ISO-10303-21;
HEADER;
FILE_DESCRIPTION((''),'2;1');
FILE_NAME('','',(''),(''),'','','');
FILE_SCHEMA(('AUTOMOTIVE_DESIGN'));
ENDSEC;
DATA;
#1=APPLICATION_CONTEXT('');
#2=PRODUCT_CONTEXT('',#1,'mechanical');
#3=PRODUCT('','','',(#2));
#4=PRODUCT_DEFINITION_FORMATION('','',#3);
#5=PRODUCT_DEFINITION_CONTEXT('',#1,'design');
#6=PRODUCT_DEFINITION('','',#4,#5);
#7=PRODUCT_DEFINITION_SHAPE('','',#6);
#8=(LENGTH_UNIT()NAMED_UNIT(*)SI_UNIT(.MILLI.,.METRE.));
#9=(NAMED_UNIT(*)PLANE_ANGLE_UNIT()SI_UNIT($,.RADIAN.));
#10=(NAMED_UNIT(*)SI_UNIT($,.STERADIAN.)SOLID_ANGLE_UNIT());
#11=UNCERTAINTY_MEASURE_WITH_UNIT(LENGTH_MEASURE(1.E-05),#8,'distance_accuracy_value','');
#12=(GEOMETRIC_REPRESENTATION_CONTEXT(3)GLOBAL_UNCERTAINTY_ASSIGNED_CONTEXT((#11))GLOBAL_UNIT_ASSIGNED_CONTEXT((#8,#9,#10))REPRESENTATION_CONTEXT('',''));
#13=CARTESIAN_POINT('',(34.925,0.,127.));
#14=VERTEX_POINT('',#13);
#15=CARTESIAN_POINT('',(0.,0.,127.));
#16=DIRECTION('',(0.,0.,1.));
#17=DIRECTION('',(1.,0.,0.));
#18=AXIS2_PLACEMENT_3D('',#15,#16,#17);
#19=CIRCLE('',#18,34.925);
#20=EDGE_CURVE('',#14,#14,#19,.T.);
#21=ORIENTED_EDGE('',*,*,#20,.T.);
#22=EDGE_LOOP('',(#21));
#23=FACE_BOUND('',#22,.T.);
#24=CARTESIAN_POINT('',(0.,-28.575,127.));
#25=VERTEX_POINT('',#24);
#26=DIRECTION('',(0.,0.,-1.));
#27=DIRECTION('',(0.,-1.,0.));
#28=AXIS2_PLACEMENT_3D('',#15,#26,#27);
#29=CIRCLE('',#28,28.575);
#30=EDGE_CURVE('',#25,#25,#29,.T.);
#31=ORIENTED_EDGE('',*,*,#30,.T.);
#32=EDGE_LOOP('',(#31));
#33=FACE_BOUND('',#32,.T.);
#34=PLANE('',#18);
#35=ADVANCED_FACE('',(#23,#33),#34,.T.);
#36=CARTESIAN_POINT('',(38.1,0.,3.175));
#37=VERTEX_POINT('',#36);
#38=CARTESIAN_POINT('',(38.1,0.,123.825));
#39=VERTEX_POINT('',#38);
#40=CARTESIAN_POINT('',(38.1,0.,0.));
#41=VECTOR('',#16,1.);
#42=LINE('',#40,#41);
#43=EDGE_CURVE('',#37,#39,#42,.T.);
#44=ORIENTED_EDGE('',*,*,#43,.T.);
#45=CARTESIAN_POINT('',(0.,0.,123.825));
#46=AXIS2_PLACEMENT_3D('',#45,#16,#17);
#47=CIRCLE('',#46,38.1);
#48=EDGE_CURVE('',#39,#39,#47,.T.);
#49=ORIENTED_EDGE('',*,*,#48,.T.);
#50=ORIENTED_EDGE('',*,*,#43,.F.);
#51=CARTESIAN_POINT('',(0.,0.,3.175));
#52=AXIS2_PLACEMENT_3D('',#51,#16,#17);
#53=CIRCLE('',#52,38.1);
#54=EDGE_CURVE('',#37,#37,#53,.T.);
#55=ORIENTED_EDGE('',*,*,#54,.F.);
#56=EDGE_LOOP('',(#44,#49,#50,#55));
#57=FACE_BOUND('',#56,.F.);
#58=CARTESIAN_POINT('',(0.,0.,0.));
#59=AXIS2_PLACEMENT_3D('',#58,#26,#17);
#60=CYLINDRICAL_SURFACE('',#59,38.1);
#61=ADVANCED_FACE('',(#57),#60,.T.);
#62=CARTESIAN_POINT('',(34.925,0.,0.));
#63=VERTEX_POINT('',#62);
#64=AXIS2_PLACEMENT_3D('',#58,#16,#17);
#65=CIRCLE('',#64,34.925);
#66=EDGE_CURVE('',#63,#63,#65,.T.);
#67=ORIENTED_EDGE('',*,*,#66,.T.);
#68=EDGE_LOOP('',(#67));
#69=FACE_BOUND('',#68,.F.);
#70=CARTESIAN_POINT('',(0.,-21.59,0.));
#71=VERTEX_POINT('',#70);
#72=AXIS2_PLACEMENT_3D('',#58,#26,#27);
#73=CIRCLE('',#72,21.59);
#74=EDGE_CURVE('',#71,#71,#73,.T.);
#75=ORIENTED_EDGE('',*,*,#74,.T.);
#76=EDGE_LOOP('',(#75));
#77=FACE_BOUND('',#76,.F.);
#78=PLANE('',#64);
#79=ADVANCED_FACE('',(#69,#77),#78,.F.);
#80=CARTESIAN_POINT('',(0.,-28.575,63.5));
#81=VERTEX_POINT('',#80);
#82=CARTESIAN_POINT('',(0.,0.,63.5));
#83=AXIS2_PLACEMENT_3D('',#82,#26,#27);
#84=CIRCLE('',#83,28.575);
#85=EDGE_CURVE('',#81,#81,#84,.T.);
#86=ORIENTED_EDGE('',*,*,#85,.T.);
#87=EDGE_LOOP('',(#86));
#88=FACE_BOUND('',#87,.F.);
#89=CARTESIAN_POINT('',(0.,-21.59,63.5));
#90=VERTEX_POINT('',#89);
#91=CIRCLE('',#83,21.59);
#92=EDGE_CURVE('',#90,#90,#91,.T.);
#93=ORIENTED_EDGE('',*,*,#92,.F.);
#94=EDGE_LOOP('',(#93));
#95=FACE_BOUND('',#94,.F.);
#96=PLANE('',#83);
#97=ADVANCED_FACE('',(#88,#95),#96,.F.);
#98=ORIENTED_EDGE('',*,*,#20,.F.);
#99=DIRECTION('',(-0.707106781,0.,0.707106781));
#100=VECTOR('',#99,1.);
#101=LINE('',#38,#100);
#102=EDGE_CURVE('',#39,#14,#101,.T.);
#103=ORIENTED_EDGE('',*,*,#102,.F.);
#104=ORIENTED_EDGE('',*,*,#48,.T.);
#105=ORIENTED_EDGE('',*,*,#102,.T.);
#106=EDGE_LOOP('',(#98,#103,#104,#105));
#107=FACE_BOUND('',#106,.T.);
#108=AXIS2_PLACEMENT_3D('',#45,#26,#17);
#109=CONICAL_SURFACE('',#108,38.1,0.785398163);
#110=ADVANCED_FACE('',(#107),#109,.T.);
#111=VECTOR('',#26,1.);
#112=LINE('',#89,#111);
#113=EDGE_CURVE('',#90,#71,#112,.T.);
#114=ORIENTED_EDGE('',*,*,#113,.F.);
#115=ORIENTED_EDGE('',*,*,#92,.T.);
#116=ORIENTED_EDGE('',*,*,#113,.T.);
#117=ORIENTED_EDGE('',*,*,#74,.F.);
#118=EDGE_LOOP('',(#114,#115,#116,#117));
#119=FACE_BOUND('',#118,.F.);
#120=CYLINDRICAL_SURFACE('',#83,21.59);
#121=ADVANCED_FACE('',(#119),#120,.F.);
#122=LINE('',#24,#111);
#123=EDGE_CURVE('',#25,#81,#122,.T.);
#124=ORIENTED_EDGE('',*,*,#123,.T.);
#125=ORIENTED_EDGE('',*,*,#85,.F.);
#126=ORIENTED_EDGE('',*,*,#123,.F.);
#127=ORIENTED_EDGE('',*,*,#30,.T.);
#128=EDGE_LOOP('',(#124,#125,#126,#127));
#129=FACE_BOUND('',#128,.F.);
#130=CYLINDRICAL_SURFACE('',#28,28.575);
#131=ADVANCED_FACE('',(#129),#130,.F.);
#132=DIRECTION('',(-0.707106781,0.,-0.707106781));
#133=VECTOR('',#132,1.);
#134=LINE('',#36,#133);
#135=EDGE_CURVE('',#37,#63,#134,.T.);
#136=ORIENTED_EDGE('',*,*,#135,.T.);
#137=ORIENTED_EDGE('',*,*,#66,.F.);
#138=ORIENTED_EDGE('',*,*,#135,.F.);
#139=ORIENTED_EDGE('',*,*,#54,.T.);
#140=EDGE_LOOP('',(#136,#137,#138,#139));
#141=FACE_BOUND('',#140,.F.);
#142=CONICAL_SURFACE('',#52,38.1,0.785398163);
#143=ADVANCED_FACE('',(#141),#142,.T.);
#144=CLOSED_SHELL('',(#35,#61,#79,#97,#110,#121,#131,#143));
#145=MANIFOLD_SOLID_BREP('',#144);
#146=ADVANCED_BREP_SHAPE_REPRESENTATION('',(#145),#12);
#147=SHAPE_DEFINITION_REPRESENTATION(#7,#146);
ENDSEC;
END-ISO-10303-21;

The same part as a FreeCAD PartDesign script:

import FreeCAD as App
import Part
import Sketcher
Q = App.Units.Quantity


def edges_at(feature, points):
    """Names of the edges that pass closest to the given points."""
    edges = feature.Shape.Edges
    near = lambda p: min(range(len(edges)), key=lambda i: edges[i].distToShape(Part.Vertex(*p))[0])
    return sorted({f"Edge{near(p) + 1}" for p in points})

doc = App.newDocument("Part")
params = doc.addObject("Spreadsheet::Sheet", "Params")
for row, (alias, value) in enumerate([
    ("sketch1_diameter", "3 in"),
    ("pad1_length", "5 in"),
    ("chamfer_size", "0.125 in"),
    ("sketch2_diameter", "1.7 in"),
    ("hole_diameter", "1.7 in"),
    ("hole_cbore_diameter", "2.25 in"),
    ("hole_cbore_depth", "2.5 in"),
], start=1):
    params.set(f"A{row}", alias)
    params.set(f"B{row}", "=" + value)
    params.setAlias(f"B{row}", alias)

body = doc.addObject("PartDesign::Body", "Body")

# Sketch on XY plane
sketch1 = body.newObject("Sketcher::SketchObject", "Sketch")
sketch1.AttachmentSupport = (doc.getObject("XY_Plane"), [""])
sketch1.MapMode = "FlatFace"
sketch1.addGeometry(Part.Circle(App.Vector(0, 0, 0), App.Vector(0, 0, 1), 38.1), False)
sketch1.addConstraint(Sketcher.Constraint("Coincident", 0, 3, -1, 1))
sketch1.addConstraint(Sketcher.Constraint("Diameter", 0, Q("3 in")))
sketch1.setExpression("Constraints[1]", "Params.sketch1_diameter")
pad1 = body.newObject("PartDesign::Pad", "Pad")
pad1.Profile = sketch1
pad1.setExpression("Length", "Params.pad1_length")
doc.recompute()

chamfer = body.newObject("PartDesign::Chamfer", "Chamfer")
chamfer.Base = (pad1, edges_at(pad1, [(-38.1, 0, 0), (-38.1, 0, 127)]))
chamfer.setExpression("Size", "Params.chamfer_size")

# Sketch on XY plane
sketch2 = body.newObject("Sketcher::SketchObject", "Sketch001")
sketch2.AttachmentSupport = (doc.getObject("XY_Plane"), [""])
sketch2.MapMode = "FlatFace"
sketch2.AttachmentOffset = App.Placement(App.Vector(0, 0, 5 * 25.4), App.Rotation())
sketch2.addGeometry(Part.Circle(App.Vector(0, 0, 0), App.Vector(0, 0, 1), 21.59), False)
sketch2.addConstraint(Sketcher.Constraint("Coincident", 0, 3, -1, 1))
sketch2.addConstraint(Sketcher.Constraint("Diameter", 0, Q("1.7 in")))
sketch2.setExpression("Constraints[1]", "Params.sketch2_diameter")
doc.recompute()
hole = body.newObject("PartDesign::Hole", "Hole")
hole.Profile = sketch2
hole.ThreadType = "None"
hole.setExpression("Diameter", "Params.hole_diameter")
hole.DepthType = "ThroughAll"
hole.HoleCutType = "Counterbore"
hole.setExpression("HoleCutDiameter", "Params.hole_cbore_diameter")
hole.setExpression("HoleCutDepth", "Params.hole_cbore_depth")

doc.recompute()
